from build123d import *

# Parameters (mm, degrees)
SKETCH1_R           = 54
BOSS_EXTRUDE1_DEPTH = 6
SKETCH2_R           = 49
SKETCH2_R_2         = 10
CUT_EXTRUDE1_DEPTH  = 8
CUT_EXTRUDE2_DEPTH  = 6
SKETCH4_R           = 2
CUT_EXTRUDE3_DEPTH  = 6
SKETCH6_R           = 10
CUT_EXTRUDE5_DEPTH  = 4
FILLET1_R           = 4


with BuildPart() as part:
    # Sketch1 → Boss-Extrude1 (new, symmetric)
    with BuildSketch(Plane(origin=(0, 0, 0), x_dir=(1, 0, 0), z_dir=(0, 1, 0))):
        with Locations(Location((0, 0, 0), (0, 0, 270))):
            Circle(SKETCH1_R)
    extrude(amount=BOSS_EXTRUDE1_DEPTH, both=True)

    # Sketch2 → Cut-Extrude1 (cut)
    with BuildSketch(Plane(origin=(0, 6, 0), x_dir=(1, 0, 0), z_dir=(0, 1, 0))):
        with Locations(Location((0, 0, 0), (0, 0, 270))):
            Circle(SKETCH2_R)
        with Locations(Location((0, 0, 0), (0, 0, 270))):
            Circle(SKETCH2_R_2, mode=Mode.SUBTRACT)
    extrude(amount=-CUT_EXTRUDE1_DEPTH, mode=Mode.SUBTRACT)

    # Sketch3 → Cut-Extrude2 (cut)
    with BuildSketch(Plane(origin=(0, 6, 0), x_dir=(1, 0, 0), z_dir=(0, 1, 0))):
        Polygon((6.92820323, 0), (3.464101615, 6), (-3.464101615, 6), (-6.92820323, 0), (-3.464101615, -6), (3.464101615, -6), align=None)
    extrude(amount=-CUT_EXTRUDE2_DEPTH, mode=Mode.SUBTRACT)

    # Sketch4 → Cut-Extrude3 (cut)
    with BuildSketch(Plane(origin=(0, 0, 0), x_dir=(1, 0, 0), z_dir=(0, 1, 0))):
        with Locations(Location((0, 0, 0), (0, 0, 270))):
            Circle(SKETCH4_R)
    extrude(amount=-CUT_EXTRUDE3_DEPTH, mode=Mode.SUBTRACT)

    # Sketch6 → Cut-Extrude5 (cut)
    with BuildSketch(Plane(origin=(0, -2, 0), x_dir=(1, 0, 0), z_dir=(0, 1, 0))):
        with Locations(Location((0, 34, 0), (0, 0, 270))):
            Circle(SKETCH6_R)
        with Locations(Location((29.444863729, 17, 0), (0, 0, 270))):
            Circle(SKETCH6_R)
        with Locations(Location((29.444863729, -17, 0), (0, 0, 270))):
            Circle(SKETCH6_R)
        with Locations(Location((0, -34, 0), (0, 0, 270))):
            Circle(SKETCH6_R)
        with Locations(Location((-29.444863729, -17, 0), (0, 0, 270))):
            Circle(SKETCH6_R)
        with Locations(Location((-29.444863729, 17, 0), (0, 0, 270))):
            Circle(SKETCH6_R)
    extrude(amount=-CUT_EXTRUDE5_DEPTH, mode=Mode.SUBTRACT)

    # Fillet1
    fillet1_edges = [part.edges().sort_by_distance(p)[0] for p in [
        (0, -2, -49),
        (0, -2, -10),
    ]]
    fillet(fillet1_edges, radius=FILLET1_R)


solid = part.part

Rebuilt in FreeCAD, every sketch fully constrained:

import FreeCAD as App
import Part
import Sketcher
Q = App.Units.Quantity


def edges_at(feature, points):
    """Names of the edges that pass closest to the given points."""
    edges = feature.Shape.Edges
    near = lambda p: min(range(len(edges)), key=lambda i: edges[i].distToShape(Part.Vertex(*p))[0])
    return sorted({f"Edge{near(p) + 1}" for p in points})


def add_polygon(sketch, points):
    """Adds a closed chain of lines whose ends are joined by coincident constraints."""
    first, n = sketch.GeometryCount, len(points)
    for a, b in zip(points, points[1:] + points[:1]):
        sketch.addGeometry(Part.LineSegment(App.Vector(*a, 0), App.Vector(*b, 0)), False)
    for i in range(n):
        sketch.addConstraint(Sketcher.Constraint("Coincident", first + i, 2, first + (i + 1) % n, 1))

doc = App.newDocument("Part")
body = doc.addObject("PartDesign::Body", "Body")

sketch1 = doc.addObject("Sketcher::SketchObject", "Sketch")
body.addObject(sketch1)
sketch1.AttachmentSupport = (doc.XZ_Plane, [""])
sketch1.MapMode = "FlatFace"
sketch1.addGeometry(Part.Circle(App.Vector(0, 0, 0), App.Vector(0, 0, 1), 54), False)
sketch1.addConstraint(Sketcher.Constraint("Coincident", 0, 3, -1, 1))
sketch1.addConstraint(Sketcher.Constraint("Diameter", 0, 108.0))
pad1 = doc.addObject("PartDesign::Pad", "Pad")
body.addObject(pad1)
pad1.Profile = sketch1
pad1.Length = 12
pad1.Midplane = True

sketch2 = doc.addObject("Sketcher::SketchObject", "Sketch001")
body.addObject(sketch2)
sketch2.AttachmentSupport = (doc.XZ_Plane, [""])
sketch2.MapMode = "FlatFace"
sketch2.AttachmentOffset = App.Placement(App.Vector(0, 0, -6), App.Rotation())
sketch2.addGeometry(Part.Circle(App.Vector(0, 0, 0), App.Vector(0, 0, 1), 49), False)
sketch2.addGeometry(Part.Circle(App.Vector(0, 0, 0), App.Vector(0, 0, 1), 10), False)
sketch2.addConstraint(Sketcher.Constraint("Coincident", 0, 3, -1, 1))
sketch2.addConstraint(Sketcher.Constraint("Coincident", 1, 3, -1, 1))
sketch2.addConstraint(Sketcher.Constraint("Diameter", 0, 98.0))
sketch2.addConstraint(Sketcher.Constraint("Diameter", 1, 20.0))
pocket1 = doc.addObject("PartDesign::Pocket", "Pocket")
body.addObject(pocket1)
pocket1.Profile = sketch2
pocket1.Length = 8
pocket1.Reversed = True

sketch3 = doc.addObject("Sketcher::SketchObject", "Sketch002")
body.addObject(sketch3)
sketch3.AttachmentSupport = (doc.XZ_Plane, [""])
sketch3.MapMode = "FlatFace"
sketch3.AttachmentOffset = App.Placement(App.Vector(0, 0, -6), App.Rotation())
add_polygon(sketch3, [(6.928203, 0), (3.464102, -6), (-3.464102, -6), (-6.928203, 0), (-3.464102, 6), (3.464102, 6)])
sketch3.addConstraint(Sketcher.Constraint("Horizontal", 1))
sketch3.addConstraint(Sketcher.Constraint("Horizontal", 4))
sketch3.addConstraint(Sketcher.Constraint("Symmetric", 0, 2, 3, 2, -1, 1))
sketch3.addConstraint(Sketcher.Constraint("Symmetric", 2, 2, 5, 2, -1, 1))
sketch3.addConstraint(Sketcher.Constraint("PointOnObject", 2, 2, -1))
sketch3.addConstraint(Sketcher.Constraint("Parallel", 2, 5))
sketch3.addConstraint(Sketcher.Constraint("Vertical", 1, 2, 3, 2))
sketch3.addConstraint(Sketcher.Constraint("Angle", 0, Q("-120 deg")))
sketch3.addConstraint(Sketcher.Constraint("DistanceY", 0, 2, -1, 1, 6.0))
sketch3.addConstraint(Sketcher.Constraint("DistanceX", -1, 1, 0, 2, 3.464102))
pocket2 = doc.addObject("PartDesign::Pocket", "Pocket001")
body.addObject(pocket2)
pocket2.Profile = sketch3
pocket2.Length = 6
pocket2.Reversed = True

sketch4 = doc.addObject("Sketcher::SketchObject", "Sketch003")
body.addObject(sketch4)
sketch4.AttachmentSupport = (doc.XZ_Plane, [""])
sketch4.MapMode = "FlatFace"
sketch4.addGeometry(Part.Circle(App.Vector(0, 0, 0), App.Vector(0, 0, 1), 2), False)
sketch4.addConstraint(Sketcher.Constraint("Coincident", 0, 3, -1, 1))
sketch4.addConstraint(Sketcher.Constraint("Diameter", 0, 4.0))
pocket3 = doc.addObject("PartDesign::Pocket", "Pocket002")
body.addObject(pocket3)
pocket3.Profile = sketch4
pocket3.Length = 6
pocket3.Reversed = True

sketch5 = doc.addObject("Sketcher::SketchObject", "Sketch004")
body.addObject(sketch5)
sketch5.AttachmentSupport = (doc.XZ_Plane, [""])
sketch5.MapMode = "FlatFace"
sketch5.AttachmentOffset = App.Placement(App.Vector(0, 0, 2), App.Rotation())
sketch5.addGeometry(Part.Circle(App.Vector(0, -34, 0), App.Vector(0, 0, 1), 10), False)
sketch5.addGeometry(Part.Circle(App.Vector(29.444864, -17, 0), App.Vector(0, 0, 1), 10), False)
sketch5.addGeometry(Part.Circle(App.Vector(29.444864, 17, 0), App.Vector(0, 0, 1), 10), False)
sketch5.addGeometry(Part.Circle(App.Vector(0, 34, 0), App.Vector(0, 0, 1), 10), False)
sketch5.addGeometry(Part.Circle(App.Vector(-29.444864, 17, 0), App.Vector(0, 0, 1), 10), False)
sketch5.addGeometry(Part.Circle(App.Vector(-29.444864, -17, 0), App.Vector(0, 0, 1), 10), False)
sketch5.addConstraint(Sketcher.Constraint("Equal", 0, 1))
sketch5.addConstraint(Sketcher.Constraint("Equal", 1, 2))
sketch5.addConstraint(Sketcher.Constraint("Equal", 2, 3))
sketch5.addConstraint(Sketcher.Constraint("Equal", 3, 4))
sketch5.addConstraint(Sketcher.Constraint("Equal", 4, 5))
sketch5.addConstraint(Sketcher.Constraint("Symmetric", 0, 3, 3, 3, -1, 1))
sketch5.addConstraint(Sketcher.Constraint("Symmetric", 1, 3, 4, 3, -1, 1))
sketch5.addConstraint(Sketcher.Constraint("Symmetric", 2, 3, 5, 3, -1, 1))
sketch5.addConstraint(Sketcher.Constraint("Symmetric", 2, 3, 4, 3, -2))
sketch5.addConstraint(Sketcher.Constraint("PointOnObject", 0, 3, -2))
sketch5.addConstraint(Sketcher.Constraint("Diameter", 0, 20.0))
sketch5.addConstraint(Sketcher.Constraint("DistanceY", 0, 3, -1, 1, 34.0))
sketch5.addConstraint(Sketcher.Constraint("DistanceY", 1, 3, -1, 1, 17.0))
sketch5.addConstraint(Sketcher.Constraint("DistanceX", -1, 1, 1, 3, 29.444864))
pocket4 = doc.addObject("PartDesign::Pocket", "Pocket003")
body.addObject(pocket4)
pocket4.Profile = sketch5
pocket4.Length = 4
pocket4.Reversed = True
doc.recompute()

fillet = doc.addObject("PartDesign::Fillet", "Fillet")
body.addObject(fillet)
fillet.Base = (pocket4, edges_at(pocket4, [(0, -2, -49), (0, -2, -10)]))
fillet.Radius = 4

doc.recompute()
